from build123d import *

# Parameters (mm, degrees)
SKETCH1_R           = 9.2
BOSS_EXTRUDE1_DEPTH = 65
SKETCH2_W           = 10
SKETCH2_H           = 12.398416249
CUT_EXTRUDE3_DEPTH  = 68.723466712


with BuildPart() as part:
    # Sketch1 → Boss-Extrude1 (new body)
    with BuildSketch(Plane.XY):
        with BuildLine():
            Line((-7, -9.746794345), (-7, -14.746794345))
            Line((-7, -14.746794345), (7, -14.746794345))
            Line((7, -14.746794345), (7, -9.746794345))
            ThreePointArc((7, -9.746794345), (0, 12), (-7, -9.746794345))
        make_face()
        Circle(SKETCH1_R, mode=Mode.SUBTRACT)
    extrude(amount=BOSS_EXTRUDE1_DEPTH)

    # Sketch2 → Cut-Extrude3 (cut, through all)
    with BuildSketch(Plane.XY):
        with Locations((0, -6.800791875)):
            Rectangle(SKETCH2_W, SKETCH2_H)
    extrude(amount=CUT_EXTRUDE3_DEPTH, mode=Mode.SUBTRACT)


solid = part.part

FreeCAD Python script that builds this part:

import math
import FreeCAD as App
import Part
import Sketcher
Q = App.Units.Quantity

doc = App.newDocument("Part")
params = doc.addObject("Spreadsheet::Sheet", "Params")
for row, (alias, value) in enumerate([
    ("sketch1_radius", "12 mm"),
    ("sketch1_diameter", "18.4 mm"),
    ("sketch1_width", "14 mm"),
    ("sketch1_height", "5 mm"),
    ("pad1_length", "65 mm"),
    ("sketch2_width", "10 mm"),
], start=1):
    params.set(f"A{row}", alias)
    params.set(f"B{row}", "=" + value)
    params.setAlias(f"B{row}", alias)

body = doc.addObject("PartDesign::Body", "Body")

sketch1 = doc.addObject("Sketcher::SketchObject", "Sketch")
body.addObject(sketch1)
sketch1.AttachmentSupport = (doc.XY_Plane, [""])
sketch1.MapMode = "FlatFace"
sketch1.addGeometry([
    Part.LineSegment(App.Vector(-7, -9.746794, 0), App.Vector(-7, -14.746794, 0)),
    Part.LineSegment(App.Vector(-7, -14.746794, 0), App.Vector(7, -14.746794, 0)),
    Part.LineSegment(App.Vector(7, -14.746794, 0), App.Vector(7, -9.746794, 0)),
    Part.ArcOfCircle(Part.Circle(App.Vector(0, 0, 0), App.Vector(0, 0, 1), 12), math.radians(-54.314665), math.radians(234.314665)),
    Part.Circle(App.Vector(0, 0, 0), App.Vector(0, 0, 1), 9.2),
], False)
sketch1.addConstraint([
    Sketcher.Constraint("Coincident", 0, 2, 1, 1),
    Sketcher.Constraint("Coincident", 1, 2, 2, 1),
    Sketcher.Constraint("Coincident", 2, 2, 3, 1),
    Sketcher.Constraint("Coincident", 3, 2, 0, 1),
    Sketcher.Constraint("Vertical", 0),
    Sketcher.Constraint("Horizontal", 1),
    Sketcher.Constraint("Vertical", 2),
    Sketcher.Constraint("Coincident", 3, 3, -1, 1),
    Sketcher.Constraint("Coincident", 4, 3, -1, 1),
    Sketcher.Constraint("Horizontal", 2, 2, 3, 2),
    Sketcher.Constraint("Radius", 3, Q("12 mm")),
    Sketcher.Constraint("Diameter", 4, Q("18.4 mm")),
    Sketcher.Constraint("DistanceX", 1, 1, 1, 2, Q("14 mm")),
    Sketcher.Constraint("DistanceY", 0, 2, 0, 1, Q("5 mm")),
])
sketch1.setExpression("Constraints[10]", "Params.sketch1_radius")
sketch1.setExpression("Constraints[11]", "Params.sketch1_diameter")
sketch1.setExpression("Constraints[12]", "Params.sketch1_width")
sketch1.setExpression("Constraints[13]", "Params.sketch1_height")
pad1 = doc.addObject("PartDesign::Pad", "Pad")
body.addObject(pad1)
pad1.Profile = sketch1
pad1.setExpression("Length", "Params.pad1_length")

sketch2 = doc.addObject("Sketcher::SketchObject", "Sketch001")
body.addObject(sketch2)
sketch2.AttachmentSupport = (doc.XY_Plane, [""])
sketch2.MapMode = "FlatFace"
sketch2.addGeometry([
    Part.LineSegment(App.Vector(-5, -0.601584, 0), App.Vector(-5, -13, 0)),
    Part.LineSegment(App.Vector(-5, -13, 0), App.Vector(5, -13, 0)),
    Part.LineSegment(App.Vector(5, -13, 0), App.Vector(5, -0.601584, 0)),
    Part.LineSegment(App.Vector(5, -0.601584, 0), App.Vector(-5, -0.601584, 0)),
], False)
sketch2.addConstraint([
    Sketcher.Constraint("Coincident", 0, 2, 1, 1),
    Sketcher.Constraint("Coincident", 1, 2, 2, 1),
    Sketcher.Constraint("Coincident", 2, 2, 3, 1),
    Sketcher.Constraint("Coincident", 3, 2, 0, 1),
    Sketcher.Constraint("Vertical", 0),
    Sketcher.Constraint("Horizontal", 1),
    Sketcher.Constraint("Vertical", 2),
    Sketcher.Constraint("Horizontal", 3),
    Sketcher.Constraint("DistanceX", 1, 1, 1, 2, Q("10 mm")),
    Sketcher.Constraint("DistanceX", 0, 2, -1, 1, Q("5 mm")),
    Sketcher.Constraint("DistanceY", 0, 2, -1, 1, Q("13 mm")),
    Sketcher.Constraint("DistanceY", 0, 2, 0, 1, Q("12.398416 mm")),
])
sketch2.setExpression("Constraints[8]", "Params.sketch2_width")
pocket1 = doc.addObject("PartDesign::Pocket", "Pocket")
body.addObject(pocket1)
pocket1.Profile = sketch2
pocket1.Type = "ThroughAll"
pocket1.Reversed = True

doc.recompute()
